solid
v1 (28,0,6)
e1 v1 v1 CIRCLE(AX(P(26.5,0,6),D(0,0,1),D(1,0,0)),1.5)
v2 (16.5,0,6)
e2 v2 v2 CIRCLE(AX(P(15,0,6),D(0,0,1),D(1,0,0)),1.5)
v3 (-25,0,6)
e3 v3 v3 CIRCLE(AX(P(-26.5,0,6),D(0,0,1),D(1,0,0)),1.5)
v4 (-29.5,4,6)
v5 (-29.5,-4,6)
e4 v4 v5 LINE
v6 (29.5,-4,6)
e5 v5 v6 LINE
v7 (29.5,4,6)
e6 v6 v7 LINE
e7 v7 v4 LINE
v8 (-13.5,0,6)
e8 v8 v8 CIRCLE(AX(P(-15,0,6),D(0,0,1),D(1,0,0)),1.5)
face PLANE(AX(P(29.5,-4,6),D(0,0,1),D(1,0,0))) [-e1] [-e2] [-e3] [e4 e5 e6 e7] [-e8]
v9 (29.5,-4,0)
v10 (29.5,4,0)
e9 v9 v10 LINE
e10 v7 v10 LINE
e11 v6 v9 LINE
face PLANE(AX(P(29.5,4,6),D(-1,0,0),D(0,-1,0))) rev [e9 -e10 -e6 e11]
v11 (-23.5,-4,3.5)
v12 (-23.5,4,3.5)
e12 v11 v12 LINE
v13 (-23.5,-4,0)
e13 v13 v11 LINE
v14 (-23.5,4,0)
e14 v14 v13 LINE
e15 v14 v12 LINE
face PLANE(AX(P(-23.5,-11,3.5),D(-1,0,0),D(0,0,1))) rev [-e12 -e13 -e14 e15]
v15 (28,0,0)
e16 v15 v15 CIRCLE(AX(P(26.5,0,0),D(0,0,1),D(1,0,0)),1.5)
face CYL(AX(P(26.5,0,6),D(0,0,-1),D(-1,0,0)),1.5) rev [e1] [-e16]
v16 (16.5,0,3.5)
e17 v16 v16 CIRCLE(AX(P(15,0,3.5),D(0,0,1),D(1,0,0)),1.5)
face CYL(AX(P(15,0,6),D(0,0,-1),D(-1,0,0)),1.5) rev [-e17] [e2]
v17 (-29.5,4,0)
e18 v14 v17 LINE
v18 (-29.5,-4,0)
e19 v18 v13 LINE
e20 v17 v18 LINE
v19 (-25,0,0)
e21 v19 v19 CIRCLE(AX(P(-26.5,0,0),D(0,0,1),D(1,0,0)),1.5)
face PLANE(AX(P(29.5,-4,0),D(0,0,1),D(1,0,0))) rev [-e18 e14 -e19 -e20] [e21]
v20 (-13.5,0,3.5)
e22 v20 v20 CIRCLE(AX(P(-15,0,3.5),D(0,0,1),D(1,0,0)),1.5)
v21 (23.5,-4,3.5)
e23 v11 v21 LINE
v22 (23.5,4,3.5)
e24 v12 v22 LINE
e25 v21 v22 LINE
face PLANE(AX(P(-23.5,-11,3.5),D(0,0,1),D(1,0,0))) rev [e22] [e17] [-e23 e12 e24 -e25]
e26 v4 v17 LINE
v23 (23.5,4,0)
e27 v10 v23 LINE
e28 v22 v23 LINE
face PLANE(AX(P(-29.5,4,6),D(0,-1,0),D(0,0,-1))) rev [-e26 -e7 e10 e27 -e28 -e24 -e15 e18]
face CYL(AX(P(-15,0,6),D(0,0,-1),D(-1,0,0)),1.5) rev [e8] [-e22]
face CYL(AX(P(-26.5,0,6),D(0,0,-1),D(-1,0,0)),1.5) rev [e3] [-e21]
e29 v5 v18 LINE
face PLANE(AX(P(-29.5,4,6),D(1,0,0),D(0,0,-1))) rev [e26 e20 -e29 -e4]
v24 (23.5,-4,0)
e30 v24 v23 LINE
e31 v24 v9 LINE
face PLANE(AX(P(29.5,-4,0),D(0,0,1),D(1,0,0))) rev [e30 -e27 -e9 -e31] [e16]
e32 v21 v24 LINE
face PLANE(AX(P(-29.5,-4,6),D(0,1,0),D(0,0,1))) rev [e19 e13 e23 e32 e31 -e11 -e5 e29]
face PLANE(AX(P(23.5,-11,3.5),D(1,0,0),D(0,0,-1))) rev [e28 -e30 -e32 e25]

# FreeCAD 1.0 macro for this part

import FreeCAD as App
import Part
import Sketcher
from FreeCAD import Vector

doc = App.newDocument("Part")
body = doc.addObject("PartDesign::Body", "Body")

# Sketch on XY plane
sketch1 = body.newObject("Sketcher::SketchObject", "Sketch")
sketch1.AttachmentSupport = (doc.getObject("XY_Plane"), [""])
sketch1.MapMode = "FlatFace"
sketch1.addGeometry(Part.LineSegment(Vector(-29.5, 4, 0), Vector(-29.5, -4, 0)), False)
sketch1.addGeometry(Part.LineSegment(Vector(-29.5, -4, 0), Vector(29.5, -4, 0)), False)
sketch1.addGeometry(Part.LineSegment(Vector(29.5, -4, 0), Vector(29.5, 4, 0)), False)
sketch1.addGeometry(Part.LineSegment(Vector(29.5, 4, 0), Vector(-29.5, 4, 0)), False)
sketch1.addGeometry(Part.Circle(Vector(-26.5, 0, 0), Vector(0, 0, 1), 1.5), False)
sketch1.addGeometry(Part.Circle(Vector(-15, 0, 0), Vector(0, 0, 1), 1.5), False)
sketch1.addGeometry(Part.Circle(Vector(15, 0, 0), Vector(0, 0, 1), 1.5), False)
sketch1.addGeometry(Part.Circle(Vector(26.5, 0, 0), Vector(0, 0, 1), 1.5), False)
sketch1.addConstraint(Sketcher.Constraint("Coincident", 0, 2, 1, 1))
sketch1.addConstraint(Sketcher.Constraint("Coincident", 1, 2, 2, 1))
sketch1.addConstraint(Sketcher.Constraint("Coincident", 2, 2, 3, 1))
sketch1.addConstraint(Sketcher.Constraint("Coincident", 3, 2, 0, 1))
sketch1.addConstraint(Sketcher.Constraint("Vertical", 0))
sketch1.addConstraint(Sketcher.Constraint("Horizontal", 1))
sketch1.addConstraint(Sketcher.Constraint("Vertical", 2))
sketch1.addConstraint(Sketcher.Constraint("Horizontal", 3))
sketch1.addConstraint(Sketcher.Constraint("Equal", 4, 5))
sketch1.addConstraint(Sketcher.Constraint("Equal", 5, 6))
sketch1.addConstraint(Sketcher.Constraint("Equal", 6, 7))
sketch1.addConstraint(Sketcher.Constraint("Symmetric", 5, 3, 6, 3, -1, 1))
sketch1.addConstraint(Sketcher.Constraint("Symmetric", 4, 3, 7, 3, -1, 1))
sketch1.addConstraint(Sketcher.Constraint("Symmetric", 0, 2, 2, 2, -1, 1))
sketch1.addConstraint(Sketcher.Constraint("PointOnObject", 4, 3, -1))
sketch1.addConstraint(Sketcher.Constraint("PointOnObject", 5, 3, -1))
sketch1.addConstraint(Sketcher.Constraint("Diameter", 4, 3.0))
sketch1.addConstraint(Sketcher.Constraint("DistanceX", 1, 1, 1, 2, 59.0))
sketch1.addConstraint(Sketcher.Constraint("DistanceY", 0, 2, 0, 1, 8.0))
sketch1.addConstraint(Sketcher.Constraint("DistanceX", 5, 3, -1, 1, 15.0))
sketch1.addConstraint(Sketcher.Constraint("DistanceX", 4, 3, 7, 3, 53.0))
pad1 = body.newObject("PartDesign::Pad", "Pad")
pad1.Profile = sketch1
pad1.Length = 6

# Sketch on XZ plane
sketch2 = body.newObject("Sketcher::SketchObject", "Sketch001")
sketch2.AttachmentSupport = (doc.getObject("XZ_Plane"), [""])
sketch2.MapMode = "FlatFace"
sketch2.AttachmentOffset = App.Placement(Vector(0, 0, -4), App.Rotation())
sketch2.addGeometry(Part.LineSegment(Vector(23.5, 3.5, 0), Vector(23.5, -3.5, 0)), False)
sketch2.addGeometry(Part.LineSegment(Vector(23.5, -3.5, 0), Vector(-23.5, -3.5, 0)), False)
sketch2.addGeometry(Part.LineSegment(Vector(-23.5, -3.5, 0), Vector(-23.5, 3.5, 0)), False)
sketch2.addGeometry(Part.LineSegment(Vector(-23.5, 3.5, 0), Vector(23.5, 3.5, 0)), False)
sketch2.addConstraint(Sketcher.Constraint("Coincident", 0, 2, 1, 1))
sketch2.addConstraint(Sketcher.Constraint("Coincident", 1, 2, 2, 1))
sketch2.addConstraint(Sketcher.Constraint("Coincident", 2, 2, 3, 1))
sketch2.addConstraint(Sketcher.Constraint("Coincident", 3, 2, 0, 1))
sketch2.addConstraint(Sketcher.Constraint("Vertical", 0))
sketch2.addConstraint(Sketcher.Constraint("Horizontal", 1))
sketch2.addConstraint(Sketcher.Constraint("Vertical", 2))
sketch2.addConstraint(Sketcher.Constraint("Horizontal", 3))
sketch2.addConstraint(Sketcher.Constraint("Symmetric", 0, 2, 2, 2, -1, 1))
sketch2.addConstraint(Sketcher.Constraint("DistanceX", 1, 2, 1, 1, 47.0))
sketch2.addConstraint(Sketcher.Constraint("DistanceY", 0, 2, 0, 1, 7.0))
pocket1 = body.newObject("PartDesign::Pocket", "Pocket")
pocket1.Profile = sketch2
pocket1.Length = 15
pocket1.Reversed = True

doc.recompute()
